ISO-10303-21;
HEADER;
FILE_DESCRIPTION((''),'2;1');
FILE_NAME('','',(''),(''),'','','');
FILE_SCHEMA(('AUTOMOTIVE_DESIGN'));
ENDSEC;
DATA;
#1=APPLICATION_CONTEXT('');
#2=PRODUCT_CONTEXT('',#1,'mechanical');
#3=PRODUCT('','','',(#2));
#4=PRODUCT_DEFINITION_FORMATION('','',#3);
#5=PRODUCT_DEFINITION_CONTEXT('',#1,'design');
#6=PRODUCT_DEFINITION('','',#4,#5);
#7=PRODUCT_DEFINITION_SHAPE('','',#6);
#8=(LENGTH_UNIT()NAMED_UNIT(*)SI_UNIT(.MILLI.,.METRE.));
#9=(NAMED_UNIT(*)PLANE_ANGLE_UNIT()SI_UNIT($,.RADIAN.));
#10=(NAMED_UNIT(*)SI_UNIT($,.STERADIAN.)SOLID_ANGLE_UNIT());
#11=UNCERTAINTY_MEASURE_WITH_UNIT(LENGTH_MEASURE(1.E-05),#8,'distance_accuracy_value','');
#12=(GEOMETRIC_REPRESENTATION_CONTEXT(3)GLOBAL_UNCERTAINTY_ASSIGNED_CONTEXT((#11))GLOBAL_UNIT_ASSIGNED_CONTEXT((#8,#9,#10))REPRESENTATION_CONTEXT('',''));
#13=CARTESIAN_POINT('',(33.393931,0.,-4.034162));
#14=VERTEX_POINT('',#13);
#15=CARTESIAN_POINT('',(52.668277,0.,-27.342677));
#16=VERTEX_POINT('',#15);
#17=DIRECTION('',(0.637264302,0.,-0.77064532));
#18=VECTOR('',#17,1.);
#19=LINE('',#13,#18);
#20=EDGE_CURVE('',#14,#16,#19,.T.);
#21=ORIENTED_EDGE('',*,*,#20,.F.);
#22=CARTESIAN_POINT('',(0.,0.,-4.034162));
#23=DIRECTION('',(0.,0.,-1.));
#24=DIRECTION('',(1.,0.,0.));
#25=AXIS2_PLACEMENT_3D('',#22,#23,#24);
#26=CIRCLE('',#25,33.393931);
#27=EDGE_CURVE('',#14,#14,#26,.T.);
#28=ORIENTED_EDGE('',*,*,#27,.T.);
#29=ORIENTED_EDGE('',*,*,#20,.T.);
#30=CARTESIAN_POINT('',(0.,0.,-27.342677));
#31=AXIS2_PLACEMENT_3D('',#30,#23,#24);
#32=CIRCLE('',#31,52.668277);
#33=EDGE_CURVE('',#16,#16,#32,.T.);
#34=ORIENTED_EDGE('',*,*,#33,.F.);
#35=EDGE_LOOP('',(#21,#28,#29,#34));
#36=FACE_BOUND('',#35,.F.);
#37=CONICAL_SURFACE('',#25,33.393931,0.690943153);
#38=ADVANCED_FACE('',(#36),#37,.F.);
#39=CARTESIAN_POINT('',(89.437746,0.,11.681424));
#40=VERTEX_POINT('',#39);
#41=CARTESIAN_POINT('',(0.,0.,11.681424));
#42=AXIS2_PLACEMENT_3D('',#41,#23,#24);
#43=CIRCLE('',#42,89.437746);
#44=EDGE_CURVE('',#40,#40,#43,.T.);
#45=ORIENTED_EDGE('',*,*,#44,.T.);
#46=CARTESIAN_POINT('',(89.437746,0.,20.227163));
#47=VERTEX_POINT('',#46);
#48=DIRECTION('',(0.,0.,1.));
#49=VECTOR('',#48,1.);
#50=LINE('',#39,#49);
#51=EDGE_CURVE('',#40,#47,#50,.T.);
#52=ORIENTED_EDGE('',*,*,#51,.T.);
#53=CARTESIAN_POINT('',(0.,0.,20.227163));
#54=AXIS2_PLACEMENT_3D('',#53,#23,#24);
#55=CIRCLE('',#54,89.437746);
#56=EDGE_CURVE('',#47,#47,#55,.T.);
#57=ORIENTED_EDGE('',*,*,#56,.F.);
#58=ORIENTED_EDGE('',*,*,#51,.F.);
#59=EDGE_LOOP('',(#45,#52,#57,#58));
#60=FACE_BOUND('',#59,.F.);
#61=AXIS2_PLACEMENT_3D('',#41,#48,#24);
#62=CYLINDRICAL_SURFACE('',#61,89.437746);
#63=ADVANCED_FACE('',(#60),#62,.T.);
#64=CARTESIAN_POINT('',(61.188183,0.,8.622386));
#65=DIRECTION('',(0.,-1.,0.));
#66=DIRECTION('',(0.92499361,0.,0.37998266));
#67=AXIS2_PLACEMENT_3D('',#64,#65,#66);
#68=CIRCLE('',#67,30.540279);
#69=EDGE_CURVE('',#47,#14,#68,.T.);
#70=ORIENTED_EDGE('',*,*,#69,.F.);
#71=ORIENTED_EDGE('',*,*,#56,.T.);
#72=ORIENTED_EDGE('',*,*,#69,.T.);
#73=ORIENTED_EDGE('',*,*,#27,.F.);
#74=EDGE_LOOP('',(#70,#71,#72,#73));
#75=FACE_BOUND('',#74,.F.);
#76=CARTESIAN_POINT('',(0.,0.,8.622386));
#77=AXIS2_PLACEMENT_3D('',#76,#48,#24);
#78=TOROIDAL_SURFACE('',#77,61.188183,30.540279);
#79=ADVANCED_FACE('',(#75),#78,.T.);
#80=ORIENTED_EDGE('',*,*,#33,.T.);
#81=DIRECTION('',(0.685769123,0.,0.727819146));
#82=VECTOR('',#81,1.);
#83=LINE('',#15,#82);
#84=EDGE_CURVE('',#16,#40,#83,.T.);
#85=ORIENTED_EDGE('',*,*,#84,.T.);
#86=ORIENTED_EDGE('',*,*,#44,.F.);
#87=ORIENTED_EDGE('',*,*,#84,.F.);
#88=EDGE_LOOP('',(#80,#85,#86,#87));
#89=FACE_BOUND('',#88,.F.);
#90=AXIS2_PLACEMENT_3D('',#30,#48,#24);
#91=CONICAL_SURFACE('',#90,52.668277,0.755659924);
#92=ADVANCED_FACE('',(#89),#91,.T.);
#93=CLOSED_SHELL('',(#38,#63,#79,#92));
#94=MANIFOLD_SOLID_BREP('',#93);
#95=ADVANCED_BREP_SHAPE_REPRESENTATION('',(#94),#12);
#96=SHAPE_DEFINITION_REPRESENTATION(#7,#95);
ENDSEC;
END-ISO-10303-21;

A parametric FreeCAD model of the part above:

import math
import FreeCAD as App
import Part
import Sketcher

doc = App.newDocument("Part")
body = doc.addObject("PartDesign::Body", "Body")

# Sketch on XZ plane
sketch1 = body.newObject("Sketcher::SketchObject", "Sketch")
sketch1.AttachmentSupport = (doc.getObject("XZ_Plane"), [""])
sketch1.MapMode = "FlatFace"
sketch1.addGeometry(Part.ArcOfCircle(Part.Circle(App.Vector(61.188183, 8.622386, 0), App.Vector(0, 0, 1), 30.540279), math.radians(22.332609), math.radians(204.482891)), False)
sketch1.addGeometry(Part.LineSegment(App.Vector(33.393931, -4.034162, 0), App.Vector(52.668277, -27.342677, 0)), False)
sketch1.addGeometry(Part.LineSegment(App.Vector(52.668277, -27.342677, 0), App.Vector(89.437746, 11.681424, 0)), False)
sketch1.addGeometry(Part.LineSegment(App.Vector(89.437746, 11.681424, 0), App.Vector(89.437746, 20.227163, 0)), False)
sketch1.addConstraint(Sketcher.Constraint("Coincident", 0, 2, 1, 1))
sketch1.addConstraint(Sketcher.Constraint("Coincident", 1, 2, 2, 1))
sketch1.addConstraint(Sketcher.Constraint("Coincident", 2, 2, 3, 1))
sketch1.addConstraint(Sketcher.Constraint("Coincident", 3, 2, 0, 1))
sketch1.addConstraint(Sketcher.Constraint("Vertical", 3))
sketch1.addConstraint(Sketcher.Constraint("Radius", 0, 30.540279))
sketch1.addConstraint(Sketcher.Constraint("DistanceY", 3, 1, 3, 2, 8.545739))
sketch1.addConstraint(Sketcher.Constraint("DistanceY", 1, 2, 2, 2, 39.024101))
sketch1.addConstraint(Sketcher.Constraint("Distance", 1, 30.245451))
sketch1.addConstraint(Sketcher.Constraint("DistanceX", -1, 1, 0, 2, 33.393931))
sketch1.addConstraint(Sketcher.Constraint("DistanceX", 0, 2, 0, 3, 27.794252))
sketch1.addConstraint(Sketcher.Constraint("DistanceX", 1, 2, 2, 2, 36.769469))
sketch1.addConstraint(Sketcher.Constraint("DistanceY", -1, 1, 0, 3, 8.622386))
revolution = body.newObject("PartDesign::Revolution", "Revolution")
revolution.Profile = sketch1
revolution.ReferenceAxis = (sketch1, ["V_Axis"])
revolution.Angle = 360

doc.recompute()
